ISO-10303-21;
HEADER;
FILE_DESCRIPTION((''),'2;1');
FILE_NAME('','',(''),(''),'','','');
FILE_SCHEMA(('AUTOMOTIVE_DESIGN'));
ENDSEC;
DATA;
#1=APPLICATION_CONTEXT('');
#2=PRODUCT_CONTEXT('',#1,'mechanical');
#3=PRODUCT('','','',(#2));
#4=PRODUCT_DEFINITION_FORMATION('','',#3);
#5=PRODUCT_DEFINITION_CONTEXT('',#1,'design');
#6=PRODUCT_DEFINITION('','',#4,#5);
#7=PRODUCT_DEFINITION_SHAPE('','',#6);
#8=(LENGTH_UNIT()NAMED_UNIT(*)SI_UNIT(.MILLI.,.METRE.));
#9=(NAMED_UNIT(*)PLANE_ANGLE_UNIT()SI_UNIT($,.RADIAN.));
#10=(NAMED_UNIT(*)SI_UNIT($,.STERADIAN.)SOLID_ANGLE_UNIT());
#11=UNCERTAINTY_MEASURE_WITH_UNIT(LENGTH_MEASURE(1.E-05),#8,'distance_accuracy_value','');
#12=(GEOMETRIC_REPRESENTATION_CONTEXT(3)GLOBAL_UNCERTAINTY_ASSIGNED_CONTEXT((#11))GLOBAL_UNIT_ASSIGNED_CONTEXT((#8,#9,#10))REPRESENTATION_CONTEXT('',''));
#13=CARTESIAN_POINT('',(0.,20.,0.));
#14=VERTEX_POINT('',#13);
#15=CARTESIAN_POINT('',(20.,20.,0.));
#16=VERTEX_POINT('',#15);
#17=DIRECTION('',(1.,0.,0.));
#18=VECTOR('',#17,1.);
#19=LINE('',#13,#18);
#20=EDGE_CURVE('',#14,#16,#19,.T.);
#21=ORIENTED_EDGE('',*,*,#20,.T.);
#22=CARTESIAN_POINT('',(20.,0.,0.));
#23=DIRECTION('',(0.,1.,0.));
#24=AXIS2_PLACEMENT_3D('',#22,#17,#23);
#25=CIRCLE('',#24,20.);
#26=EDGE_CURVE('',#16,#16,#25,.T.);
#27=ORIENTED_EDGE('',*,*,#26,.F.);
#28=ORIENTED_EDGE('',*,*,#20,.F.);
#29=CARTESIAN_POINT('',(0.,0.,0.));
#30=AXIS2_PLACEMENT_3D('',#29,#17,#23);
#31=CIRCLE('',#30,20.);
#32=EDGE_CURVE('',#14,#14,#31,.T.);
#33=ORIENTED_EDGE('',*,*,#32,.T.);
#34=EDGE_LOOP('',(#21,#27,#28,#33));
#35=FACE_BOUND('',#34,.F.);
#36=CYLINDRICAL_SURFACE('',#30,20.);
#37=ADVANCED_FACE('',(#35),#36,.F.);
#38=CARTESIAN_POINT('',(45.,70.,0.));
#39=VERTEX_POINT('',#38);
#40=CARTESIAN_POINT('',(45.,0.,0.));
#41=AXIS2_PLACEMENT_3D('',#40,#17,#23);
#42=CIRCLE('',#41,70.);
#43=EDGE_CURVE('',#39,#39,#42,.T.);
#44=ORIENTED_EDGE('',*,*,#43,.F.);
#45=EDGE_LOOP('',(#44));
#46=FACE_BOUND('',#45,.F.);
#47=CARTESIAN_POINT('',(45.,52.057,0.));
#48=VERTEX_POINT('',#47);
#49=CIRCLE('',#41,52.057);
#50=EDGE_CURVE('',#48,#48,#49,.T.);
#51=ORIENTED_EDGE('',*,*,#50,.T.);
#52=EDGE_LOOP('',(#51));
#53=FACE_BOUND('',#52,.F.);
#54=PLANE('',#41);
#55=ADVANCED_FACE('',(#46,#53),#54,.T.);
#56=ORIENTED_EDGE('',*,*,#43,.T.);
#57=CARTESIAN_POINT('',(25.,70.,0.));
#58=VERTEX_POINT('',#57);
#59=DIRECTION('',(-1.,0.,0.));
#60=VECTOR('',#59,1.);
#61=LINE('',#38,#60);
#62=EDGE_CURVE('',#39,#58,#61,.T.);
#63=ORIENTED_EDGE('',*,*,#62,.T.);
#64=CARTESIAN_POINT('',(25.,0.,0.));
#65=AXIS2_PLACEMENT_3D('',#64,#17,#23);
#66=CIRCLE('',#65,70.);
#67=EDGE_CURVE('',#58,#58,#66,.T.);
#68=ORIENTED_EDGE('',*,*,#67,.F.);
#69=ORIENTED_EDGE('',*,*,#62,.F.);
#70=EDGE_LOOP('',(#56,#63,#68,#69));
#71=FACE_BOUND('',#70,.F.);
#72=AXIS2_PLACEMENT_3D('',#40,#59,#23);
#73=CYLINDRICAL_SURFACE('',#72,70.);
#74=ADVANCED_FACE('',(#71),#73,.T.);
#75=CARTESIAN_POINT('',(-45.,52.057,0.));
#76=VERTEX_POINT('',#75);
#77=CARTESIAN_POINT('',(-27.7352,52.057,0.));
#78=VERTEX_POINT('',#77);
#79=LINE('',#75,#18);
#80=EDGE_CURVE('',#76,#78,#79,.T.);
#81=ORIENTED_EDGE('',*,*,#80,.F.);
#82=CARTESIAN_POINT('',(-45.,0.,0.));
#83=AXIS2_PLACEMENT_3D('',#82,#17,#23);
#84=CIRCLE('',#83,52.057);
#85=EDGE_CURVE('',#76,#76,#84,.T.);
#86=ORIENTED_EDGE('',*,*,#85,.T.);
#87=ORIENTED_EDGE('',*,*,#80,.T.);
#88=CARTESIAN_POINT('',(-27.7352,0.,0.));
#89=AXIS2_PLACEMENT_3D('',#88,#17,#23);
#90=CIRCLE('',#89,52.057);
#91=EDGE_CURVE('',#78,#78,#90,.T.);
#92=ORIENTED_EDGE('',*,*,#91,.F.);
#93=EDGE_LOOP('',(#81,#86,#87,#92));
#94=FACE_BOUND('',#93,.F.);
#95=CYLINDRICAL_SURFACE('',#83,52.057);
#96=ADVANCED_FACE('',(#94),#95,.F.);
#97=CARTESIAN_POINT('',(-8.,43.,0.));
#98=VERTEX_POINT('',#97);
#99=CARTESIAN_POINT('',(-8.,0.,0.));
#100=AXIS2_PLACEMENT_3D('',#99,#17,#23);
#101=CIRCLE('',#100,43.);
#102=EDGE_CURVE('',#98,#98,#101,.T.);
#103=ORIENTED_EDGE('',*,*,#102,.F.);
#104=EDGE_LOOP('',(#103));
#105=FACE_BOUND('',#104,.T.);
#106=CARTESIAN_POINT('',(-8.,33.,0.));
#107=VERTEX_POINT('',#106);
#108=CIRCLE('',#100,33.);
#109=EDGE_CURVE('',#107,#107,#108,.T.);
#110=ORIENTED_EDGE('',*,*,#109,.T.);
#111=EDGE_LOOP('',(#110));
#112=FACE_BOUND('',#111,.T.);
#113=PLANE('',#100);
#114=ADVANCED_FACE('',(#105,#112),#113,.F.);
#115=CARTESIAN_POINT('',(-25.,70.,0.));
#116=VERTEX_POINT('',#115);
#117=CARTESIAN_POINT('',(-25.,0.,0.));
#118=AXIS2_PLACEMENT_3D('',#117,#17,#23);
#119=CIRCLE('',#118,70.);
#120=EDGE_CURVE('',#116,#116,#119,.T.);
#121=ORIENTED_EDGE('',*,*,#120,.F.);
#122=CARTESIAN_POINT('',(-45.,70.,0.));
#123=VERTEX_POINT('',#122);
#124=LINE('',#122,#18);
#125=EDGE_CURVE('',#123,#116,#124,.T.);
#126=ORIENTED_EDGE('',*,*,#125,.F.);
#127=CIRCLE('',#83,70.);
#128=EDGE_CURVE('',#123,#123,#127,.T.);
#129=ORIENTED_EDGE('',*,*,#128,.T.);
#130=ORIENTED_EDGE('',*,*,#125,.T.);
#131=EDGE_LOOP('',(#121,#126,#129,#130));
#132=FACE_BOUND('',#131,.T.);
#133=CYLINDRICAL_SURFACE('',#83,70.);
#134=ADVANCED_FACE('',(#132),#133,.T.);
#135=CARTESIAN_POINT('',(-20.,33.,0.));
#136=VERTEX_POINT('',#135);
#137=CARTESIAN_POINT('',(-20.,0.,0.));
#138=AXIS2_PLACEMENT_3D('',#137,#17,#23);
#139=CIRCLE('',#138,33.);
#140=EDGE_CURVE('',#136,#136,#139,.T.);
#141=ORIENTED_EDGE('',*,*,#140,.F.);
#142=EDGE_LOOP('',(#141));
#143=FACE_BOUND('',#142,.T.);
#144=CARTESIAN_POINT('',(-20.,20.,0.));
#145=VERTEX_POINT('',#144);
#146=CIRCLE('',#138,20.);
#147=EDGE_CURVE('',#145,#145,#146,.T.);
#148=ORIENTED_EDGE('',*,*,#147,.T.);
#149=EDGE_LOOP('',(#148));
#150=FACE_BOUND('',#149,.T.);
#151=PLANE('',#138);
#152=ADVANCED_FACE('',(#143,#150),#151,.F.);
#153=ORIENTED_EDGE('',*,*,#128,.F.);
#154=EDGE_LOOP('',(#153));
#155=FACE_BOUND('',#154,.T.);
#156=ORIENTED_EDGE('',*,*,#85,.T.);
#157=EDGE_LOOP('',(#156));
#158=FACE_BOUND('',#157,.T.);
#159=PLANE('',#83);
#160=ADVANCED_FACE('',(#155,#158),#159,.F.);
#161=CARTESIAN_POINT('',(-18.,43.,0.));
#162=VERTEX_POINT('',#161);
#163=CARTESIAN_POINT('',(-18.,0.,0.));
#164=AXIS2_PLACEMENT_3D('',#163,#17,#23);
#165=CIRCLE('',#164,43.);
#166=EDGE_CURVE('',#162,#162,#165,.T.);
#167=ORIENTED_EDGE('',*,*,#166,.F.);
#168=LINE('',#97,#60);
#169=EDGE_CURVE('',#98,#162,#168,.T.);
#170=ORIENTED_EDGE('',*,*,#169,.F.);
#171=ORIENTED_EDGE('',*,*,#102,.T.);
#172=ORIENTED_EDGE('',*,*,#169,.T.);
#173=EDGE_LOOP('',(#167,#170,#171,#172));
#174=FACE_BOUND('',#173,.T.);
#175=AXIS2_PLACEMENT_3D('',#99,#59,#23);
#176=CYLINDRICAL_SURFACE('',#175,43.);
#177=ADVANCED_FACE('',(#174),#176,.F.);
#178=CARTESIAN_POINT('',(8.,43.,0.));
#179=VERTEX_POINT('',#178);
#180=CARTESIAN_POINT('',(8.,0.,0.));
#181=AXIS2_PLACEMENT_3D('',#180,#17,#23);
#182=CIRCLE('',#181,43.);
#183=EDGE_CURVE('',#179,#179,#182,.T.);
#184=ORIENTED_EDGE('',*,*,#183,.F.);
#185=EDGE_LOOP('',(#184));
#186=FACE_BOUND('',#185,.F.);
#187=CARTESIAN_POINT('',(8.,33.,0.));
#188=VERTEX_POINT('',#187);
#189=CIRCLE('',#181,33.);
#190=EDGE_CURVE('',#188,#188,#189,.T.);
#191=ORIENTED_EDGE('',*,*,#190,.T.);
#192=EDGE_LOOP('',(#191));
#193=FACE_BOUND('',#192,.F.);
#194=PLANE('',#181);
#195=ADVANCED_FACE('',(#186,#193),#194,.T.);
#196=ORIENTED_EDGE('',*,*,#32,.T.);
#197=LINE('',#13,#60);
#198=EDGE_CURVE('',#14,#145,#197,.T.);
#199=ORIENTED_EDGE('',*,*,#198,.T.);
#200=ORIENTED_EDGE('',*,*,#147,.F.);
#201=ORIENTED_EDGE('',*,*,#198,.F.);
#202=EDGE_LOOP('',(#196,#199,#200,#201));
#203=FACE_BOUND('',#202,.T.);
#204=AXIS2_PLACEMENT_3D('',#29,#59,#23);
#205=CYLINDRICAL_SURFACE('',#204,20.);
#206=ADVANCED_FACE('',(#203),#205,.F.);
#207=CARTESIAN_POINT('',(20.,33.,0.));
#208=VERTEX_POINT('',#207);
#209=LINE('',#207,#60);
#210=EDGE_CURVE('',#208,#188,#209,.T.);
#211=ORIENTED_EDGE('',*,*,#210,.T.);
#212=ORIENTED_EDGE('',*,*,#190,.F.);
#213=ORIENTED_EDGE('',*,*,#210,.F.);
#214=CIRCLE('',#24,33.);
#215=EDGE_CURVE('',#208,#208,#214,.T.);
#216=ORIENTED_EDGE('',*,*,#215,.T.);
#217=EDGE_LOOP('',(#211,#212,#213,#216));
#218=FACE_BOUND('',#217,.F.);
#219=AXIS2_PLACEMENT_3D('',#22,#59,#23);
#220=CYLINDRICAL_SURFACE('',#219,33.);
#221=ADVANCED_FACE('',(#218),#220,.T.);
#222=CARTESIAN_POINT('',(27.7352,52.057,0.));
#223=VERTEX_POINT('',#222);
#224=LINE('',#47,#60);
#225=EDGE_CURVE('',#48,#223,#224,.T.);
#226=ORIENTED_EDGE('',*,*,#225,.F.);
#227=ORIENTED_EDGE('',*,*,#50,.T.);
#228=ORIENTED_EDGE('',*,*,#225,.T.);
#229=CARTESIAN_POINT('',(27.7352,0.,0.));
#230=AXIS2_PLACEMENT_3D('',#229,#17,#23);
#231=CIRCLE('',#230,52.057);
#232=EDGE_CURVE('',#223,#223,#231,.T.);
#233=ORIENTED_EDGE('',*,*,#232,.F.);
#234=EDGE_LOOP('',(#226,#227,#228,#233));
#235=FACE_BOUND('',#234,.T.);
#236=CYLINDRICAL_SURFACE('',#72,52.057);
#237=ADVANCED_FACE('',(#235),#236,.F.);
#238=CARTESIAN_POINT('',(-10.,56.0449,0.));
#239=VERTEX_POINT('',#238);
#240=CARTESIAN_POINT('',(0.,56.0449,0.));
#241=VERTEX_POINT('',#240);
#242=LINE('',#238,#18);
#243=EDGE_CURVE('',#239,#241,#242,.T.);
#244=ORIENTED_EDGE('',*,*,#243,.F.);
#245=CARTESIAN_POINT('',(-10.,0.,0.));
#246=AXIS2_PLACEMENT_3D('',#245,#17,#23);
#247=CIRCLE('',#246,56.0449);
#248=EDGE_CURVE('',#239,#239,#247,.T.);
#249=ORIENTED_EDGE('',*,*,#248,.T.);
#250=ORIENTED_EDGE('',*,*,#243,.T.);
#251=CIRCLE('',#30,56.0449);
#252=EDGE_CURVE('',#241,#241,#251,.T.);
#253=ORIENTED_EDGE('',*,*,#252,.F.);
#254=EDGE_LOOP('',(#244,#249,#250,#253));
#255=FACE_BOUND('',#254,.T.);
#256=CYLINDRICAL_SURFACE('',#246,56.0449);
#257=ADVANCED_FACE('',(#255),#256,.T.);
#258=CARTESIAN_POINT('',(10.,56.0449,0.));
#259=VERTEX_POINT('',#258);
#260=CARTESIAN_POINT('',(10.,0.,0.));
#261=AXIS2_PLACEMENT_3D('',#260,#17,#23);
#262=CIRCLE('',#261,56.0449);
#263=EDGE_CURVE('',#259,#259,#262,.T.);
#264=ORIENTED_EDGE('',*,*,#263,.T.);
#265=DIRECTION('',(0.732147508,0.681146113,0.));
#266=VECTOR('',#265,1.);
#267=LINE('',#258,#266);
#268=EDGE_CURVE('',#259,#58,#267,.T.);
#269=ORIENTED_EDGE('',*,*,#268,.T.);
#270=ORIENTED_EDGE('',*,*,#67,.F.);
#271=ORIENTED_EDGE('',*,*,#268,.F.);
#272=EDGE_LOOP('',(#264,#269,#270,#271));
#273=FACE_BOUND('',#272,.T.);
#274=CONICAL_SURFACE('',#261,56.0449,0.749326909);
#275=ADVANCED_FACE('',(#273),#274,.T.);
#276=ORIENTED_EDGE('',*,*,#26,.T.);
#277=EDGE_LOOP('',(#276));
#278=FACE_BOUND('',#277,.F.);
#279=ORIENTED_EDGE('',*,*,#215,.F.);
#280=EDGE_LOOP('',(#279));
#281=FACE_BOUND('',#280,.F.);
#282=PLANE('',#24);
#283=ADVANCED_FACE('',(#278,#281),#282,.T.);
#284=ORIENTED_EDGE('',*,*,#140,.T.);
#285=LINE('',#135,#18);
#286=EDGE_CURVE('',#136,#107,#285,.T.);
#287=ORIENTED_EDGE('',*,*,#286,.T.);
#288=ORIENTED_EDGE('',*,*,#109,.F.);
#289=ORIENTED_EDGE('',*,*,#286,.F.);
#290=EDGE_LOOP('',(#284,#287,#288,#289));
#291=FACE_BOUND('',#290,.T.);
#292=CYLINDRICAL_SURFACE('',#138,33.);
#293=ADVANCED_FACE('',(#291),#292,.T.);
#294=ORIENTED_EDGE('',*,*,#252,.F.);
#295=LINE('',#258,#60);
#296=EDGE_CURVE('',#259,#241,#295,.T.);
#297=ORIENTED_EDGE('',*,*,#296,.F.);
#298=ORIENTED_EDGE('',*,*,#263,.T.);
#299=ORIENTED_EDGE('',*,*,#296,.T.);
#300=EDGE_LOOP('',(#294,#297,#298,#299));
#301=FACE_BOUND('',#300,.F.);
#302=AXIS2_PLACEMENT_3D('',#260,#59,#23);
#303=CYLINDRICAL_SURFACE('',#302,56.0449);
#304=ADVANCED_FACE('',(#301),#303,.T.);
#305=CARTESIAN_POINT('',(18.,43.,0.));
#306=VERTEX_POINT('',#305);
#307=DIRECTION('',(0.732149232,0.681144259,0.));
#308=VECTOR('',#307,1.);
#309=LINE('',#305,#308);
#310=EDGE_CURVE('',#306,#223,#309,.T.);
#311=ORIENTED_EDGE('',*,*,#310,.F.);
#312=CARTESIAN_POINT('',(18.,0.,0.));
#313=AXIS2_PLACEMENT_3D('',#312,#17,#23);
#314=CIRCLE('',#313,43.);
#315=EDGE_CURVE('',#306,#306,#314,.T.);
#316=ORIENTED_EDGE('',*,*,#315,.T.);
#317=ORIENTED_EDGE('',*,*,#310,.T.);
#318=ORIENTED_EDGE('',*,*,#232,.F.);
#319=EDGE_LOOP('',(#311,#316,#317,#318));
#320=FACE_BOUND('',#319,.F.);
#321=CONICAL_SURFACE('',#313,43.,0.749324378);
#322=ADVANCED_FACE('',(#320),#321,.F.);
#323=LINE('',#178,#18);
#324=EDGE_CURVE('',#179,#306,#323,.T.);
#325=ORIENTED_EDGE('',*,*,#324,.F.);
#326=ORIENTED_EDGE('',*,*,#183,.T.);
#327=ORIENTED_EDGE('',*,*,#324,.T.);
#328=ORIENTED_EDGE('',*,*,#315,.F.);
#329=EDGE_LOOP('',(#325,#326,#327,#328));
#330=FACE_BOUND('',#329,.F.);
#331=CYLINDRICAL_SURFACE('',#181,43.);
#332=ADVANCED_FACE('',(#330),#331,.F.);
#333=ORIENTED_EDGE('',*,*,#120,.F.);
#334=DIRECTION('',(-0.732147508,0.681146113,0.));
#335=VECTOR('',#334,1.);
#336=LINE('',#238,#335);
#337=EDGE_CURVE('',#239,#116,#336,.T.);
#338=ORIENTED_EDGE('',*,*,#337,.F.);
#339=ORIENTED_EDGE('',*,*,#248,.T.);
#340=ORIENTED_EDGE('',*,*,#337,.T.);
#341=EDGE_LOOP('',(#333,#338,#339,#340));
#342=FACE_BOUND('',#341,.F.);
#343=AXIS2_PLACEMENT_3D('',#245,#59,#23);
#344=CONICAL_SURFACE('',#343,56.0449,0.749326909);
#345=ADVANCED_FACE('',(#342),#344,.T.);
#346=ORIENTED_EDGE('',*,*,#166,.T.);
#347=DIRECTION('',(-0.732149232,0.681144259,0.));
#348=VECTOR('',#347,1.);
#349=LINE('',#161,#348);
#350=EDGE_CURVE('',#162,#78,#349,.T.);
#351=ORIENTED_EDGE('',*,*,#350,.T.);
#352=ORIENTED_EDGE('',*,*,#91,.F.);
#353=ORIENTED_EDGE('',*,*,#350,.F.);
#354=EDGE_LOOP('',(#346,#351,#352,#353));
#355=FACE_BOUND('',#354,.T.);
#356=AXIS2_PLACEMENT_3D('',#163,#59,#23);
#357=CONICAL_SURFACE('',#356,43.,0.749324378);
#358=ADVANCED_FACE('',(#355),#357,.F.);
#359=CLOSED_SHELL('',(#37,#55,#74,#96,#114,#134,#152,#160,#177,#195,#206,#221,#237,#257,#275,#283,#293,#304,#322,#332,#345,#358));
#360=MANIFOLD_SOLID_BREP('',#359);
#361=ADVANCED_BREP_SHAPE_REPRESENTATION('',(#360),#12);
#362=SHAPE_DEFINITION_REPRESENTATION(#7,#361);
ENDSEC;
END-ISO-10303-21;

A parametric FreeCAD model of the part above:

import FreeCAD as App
import Part
import Sketcher
from FreeCAD import Vector
Q = App.Units.Quantity


def add_polygon(sketch, points):
    """Adds a closed chain of lines whose ends are joined by coincident constraints."""
    first, n = sketch.GeometryCount, len(points)
    for a, b in zip(points, points[1:] + points[:1]):
        sketch.addGeometry(Part.LineSegment(App.Vector(*a, 0), App.Vector(*b, 0)), False)
    for i in range(n):
        sketch.addConstraint(Sketcher.Constraint("Coincident", first + i, 2, first + (i + 1) % n, 1))

doc = App.newDocument("Part")
body = doc.addObject("PartDesign::Body", "Body")

# Sketch on XY plane
sketch1 = doc.addObject("Sketcher::SketchObject", "Sketch")
body.addObject(sketch1)
sketch1.AttachmentSupport = (doc.XY_Plane, [""])
sketch1.MapMode = "FlatFace"
add_polygon(sketch1, [(-20, 20), (20, 20), (20, 33), (8, 33), (8, 43), (18, 43), (27.7352, 52.057), (45, 52.057), (45, 70), (25, 70), (10, 56.0449), (-10, 56.0449), (-25, 70), (-45, 70), (-45, 52.057), (-27.7352, 52.057), (-18, 43), (-8, 43), (-8, 33), (-20, 33)])  # lines 0-19
sketch1.addConstraint(Sketcher.Constraint("Horizontal", 0))
sketch1.addConstraint(Sketcher.Constraint("Vertical", 1))
sketch1.addConstraint(Sketcher.Constraint("Horizontal", 2))
sketch1.addConstraint(Sketcher.Constraint("Vertical", 3))
sketch1.addConstraint(Sketcher.Constraint("Horizontal", 4))
sketch1.addConstraint(Sketcher.Constraint("Horizontal", 6))
sketch1.addConstraint(Sketcher.Constraint("Vertical", 7))
sketch1.addConstraint(Sketcher.Constraint("Horizontal", 8))
sketch1.addConstraint(Sketcher.Constraint("Horizontal", 10))
sketch1.addConstraint(Sketcher.Constraint("Horizontal", 12))
sketch1.addConstraint(Sketcher.Constraint("Vertical", 13))
sketch1.addConstraint(Sketcher.Constraint("Horizontal", 14))
sketch1.addConstraint(Sketcher.Constraint("Horizontal", 16))
sketch1.addConstraint(Sketcher.Constraint("Vertical", 17))
sketch1.addConstraint(Sketcher.Constraint("Horizontal", 18))
sketch1.addConstraint(Sketcher.Constraint("Vertical", 19))
sketch1.addConstraint(Sketcher.Constraint("Symmetric", 8, 2, 11, 2, -2))
sketch1.addConstraint(Sketcher.Constraint("Symmetric", 6, 2, 13, 2, -2))
sketch1.addConstraint(Sketcher.Constraint("Symmetric", 4, 2, 15, 2, -2))
sketch1.addConstraint(Sketcher.Constraint("Symmetric", 2, 2, 17, 2, -2))
sketch1.addConstraint(Sketcher.Constraint("Parallel", 5, 9))
sketch1.addConstraint(Sketcher.Constraint("Parallel", 11, 15))
sketch1.addConstraint(Sketcher.Constraint("Equal", 8, 10))
sketch1.addConstraint(Sketcher.Constraint("Equal", 6, 14))
sketch1.addConstraint(Sketcher.Constraint("Equal", 2, 18))
sketch1.addConstraint(Sketcher.Constraint("Equal", 16, 3))
sketch1.addConstraint(Sketcher.Constraint("DistanceX", 4, 1, 4, 2, Q("10 mm")))
sketch1.addConstraint(Sketcher.Constraint("DistanceX", 8, 2, 8, 1, Q("20 mm")))
sketch1.addConstraint(Sketcher.Constraint("DistanceY", 1, 1, 1, 2, Q("13 mm")))
sketch1.addConstraint(Sketcher.Constraint("DistanceX", -1, 1, 0, 2, Q("20 mm")))
sketch1.addConstraint(Sketcher.Constraint("DistanceY", -1, 1, 0, 2, Q("20 mm")))
sketch1.addConstraint(Sketcher.Constraint("DistanceX", -1, 1, 2, 2, Q("8 mm")))
sketch1.addConstraint(Sketcher.Constraint("DistanceX", -1, 1, 6, 2, Q("45 mm")))
sketch1.addConstraint(Sketcher.Constraint("DistanceY", -1, 1, 7, 2, Q("70 mm")))
sketch1.addConstraint(Sketcher.Constraint("DistanceY", 7, 1, 7, 2, Q("17.943 mm")))
sketch1.addConstraint(Sketcher.Constraint("DistanceX", 6, 1, 6, 2, Q("17.2648 mm")))
revolution = doc.addObject("PartDesign::Revolution", "Revolution")
body.addObject(revolution)
revolution.Profile = sketch1
revolution.ReferenceAxis = (sketch1, ["H_Axis"])
revolution.Angle = 360

doc.recompute()
